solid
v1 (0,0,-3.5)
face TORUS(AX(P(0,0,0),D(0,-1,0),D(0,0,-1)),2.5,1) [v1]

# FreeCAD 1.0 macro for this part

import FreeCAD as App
import Part
import Sketcher
from FreeCAD import Vector
Q = App.Units.Quantity

doc = App.newDocument("Part")
body = doc.addObject("PartDesign::Body", "Body")

# Sketch on XY plane
sketch1 = body.newObject("Sketcher::SketchObject", "Sketch")
sketch1.AttachmentSupport = (doc.getObject("XY_Plane"), [""])
sketch1.MapMode = "FlatFace"
sketch1.addGeometry(Part.Circle(Vector(2.5, 0, 0), Vector(0, 0, 1), 1), False)
sketch1.addConstraint([
    Sketcher.Constraint("PointOnObject", 0, 3, -1),
    Sketcher.Constraint("Diameter", 0, Q("2 mm")),
    Sketcher.Constraint("DistanceX", -1, 1, 0, 3, Q("2.5 mm")),
])
revolution = body.newObject("PartDesign::Revolution", "Revolution")
revolution.Profile = sketch1
revolution.ReferenceAxis = (sketch1, ["V_Axis"])
revolution.Angle = 360

doc.recompute()
